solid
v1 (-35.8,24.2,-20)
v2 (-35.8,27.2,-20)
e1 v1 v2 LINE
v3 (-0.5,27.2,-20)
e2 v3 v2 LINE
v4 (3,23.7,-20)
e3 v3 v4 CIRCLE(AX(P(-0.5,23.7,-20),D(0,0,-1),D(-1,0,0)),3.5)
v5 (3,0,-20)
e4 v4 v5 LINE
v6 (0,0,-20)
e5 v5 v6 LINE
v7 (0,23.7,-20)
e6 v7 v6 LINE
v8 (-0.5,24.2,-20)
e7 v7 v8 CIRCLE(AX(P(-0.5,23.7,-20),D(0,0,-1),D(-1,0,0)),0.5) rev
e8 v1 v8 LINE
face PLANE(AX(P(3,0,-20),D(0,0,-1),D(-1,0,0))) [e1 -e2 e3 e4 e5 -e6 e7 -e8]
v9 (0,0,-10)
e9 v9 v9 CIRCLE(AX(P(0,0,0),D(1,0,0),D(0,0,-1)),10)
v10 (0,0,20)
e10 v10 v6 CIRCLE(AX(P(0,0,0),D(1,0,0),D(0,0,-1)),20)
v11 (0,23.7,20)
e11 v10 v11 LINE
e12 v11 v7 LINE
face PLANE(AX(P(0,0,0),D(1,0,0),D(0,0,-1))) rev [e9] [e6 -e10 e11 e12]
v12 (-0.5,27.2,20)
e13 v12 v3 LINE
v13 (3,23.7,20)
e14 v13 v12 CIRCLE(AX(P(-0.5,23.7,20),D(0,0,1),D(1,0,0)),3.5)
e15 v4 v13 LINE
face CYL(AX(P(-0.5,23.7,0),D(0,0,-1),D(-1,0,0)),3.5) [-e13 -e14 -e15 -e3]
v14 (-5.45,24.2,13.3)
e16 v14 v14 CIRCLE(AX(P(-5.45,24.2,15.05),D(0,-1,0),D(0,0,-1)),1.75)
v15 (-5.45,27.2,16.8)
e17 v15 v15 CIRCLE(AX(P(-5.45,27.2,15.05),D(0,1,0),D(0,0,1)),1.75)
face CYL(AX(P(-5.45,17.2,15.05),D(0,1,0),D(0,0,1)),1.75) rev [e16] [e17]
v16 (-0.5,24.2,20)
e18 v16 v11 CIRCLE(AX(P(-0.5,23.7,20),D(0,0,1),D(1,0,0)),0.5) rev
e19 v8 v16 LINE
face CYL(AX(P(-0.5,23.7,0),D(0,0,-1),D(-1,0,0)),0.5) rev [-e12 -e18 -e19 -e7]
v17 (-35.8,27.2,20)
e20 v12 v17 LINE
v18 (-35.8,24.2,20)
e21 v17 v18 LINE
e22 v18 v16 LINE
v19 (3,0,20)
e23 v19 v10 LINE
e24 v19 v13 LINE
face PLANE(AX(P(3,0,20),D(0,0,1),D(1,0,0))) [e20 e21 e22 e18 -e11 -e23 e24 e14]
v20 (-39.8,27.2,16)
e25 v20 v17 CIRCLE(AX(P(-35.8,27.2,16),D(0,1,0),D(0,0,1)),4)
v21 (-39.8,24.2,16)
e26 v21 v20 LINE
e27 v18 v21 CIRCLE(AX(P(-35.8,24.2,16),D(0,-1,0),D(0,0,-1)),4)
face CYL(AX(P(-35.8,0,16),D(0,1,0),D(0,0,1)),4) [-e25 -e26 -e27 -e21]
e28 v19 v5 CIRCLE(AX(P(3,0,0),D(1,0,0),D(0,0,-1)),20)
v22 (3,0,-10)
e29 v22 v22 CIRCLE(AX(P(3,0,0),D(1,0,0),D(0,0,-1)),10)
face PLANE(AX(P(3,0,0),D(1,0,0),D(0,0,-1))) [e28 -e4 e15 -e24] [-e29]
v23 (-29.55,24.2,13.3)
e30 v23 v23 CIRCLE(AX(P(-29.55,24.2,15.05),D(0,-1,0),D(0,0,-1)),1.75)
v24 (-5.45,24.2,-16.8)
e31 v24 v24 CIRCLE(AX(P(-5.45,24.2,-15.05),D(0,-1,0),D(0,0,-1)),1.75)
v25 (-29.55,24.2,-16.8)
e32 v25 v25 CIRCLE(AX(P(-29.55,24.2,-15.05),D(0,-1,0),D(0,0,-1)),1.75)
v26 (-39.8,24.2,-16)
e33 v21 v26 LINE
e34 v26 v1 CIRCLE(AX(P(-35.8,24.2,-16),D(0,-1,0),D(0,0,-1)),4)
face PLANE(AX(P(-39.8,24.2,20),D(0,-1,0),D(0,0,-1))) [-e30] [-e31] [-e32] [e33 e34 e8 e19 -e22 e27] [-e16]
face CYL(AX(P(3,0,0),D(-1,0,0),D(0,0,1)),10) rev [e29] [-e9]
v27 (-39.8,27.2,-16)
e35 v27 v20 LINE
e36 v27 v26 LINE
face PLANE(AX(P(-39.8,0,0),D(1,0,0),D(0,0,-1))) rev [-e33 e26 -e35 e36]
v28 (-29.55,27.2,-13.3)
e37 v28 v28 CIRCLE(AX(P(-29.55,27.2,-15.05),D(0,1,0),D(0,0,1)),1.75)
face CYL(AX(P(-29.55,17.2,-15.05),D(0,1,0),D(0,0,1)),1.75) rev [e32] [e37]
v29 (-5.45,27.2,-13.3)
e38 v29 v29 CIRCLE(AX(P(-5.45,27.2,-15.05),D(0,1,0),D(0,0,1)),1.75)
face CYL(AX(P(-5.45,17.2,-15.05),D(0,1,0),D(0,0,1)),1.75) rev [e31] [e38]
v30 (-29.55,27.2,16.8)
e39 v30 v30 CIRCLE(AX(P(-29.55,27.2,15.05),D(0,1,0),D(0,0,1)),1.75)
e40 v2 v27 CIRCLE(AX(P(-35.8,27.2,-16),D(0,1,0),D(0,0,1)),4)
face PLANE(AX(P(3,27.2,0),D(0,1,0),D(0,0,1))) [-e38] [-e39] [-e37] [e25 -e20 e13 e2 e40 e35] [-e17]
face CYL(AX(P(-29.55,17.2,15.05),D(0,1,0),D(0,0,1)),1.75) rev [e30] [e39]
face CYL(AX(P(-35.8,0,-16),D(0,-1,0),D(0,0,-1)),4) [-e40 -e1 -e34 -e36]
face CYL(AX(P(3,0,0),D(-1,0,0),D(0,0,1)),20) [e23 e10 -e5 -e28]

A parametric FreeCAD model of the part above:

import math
import FreeCAD as App
import Part
import Sketcher

V = App.Vector


def edges_at(feature, points):
    """Names of the edges that pass closest to the given points."""
    edges = feature.Shape.Edges
    near = lambda p: min(range(len(edges)), key=lambda i: edges[i].distToShape(Part.Vertex(*p))[0])
    return sorted({f"Edge{near(p) + 1}" for p in points})

doc = App.newDocument("Part")
body = doc.addObject("PartDesign::Body", "Body")

# Sketch on YZ plane
sketch1 = body.newObject("Sketcher::SketchObject", "Sketch")
sketch1.AttachmentSupport = (doc.getObject("YZ_Plane"), [""])
sketch1.MapMode = "FlatFace"
sketch1.addGeometry([
    Part.LineSegment(V(27, 20, 0), V(0, 20, 0)),  # 0
    Part.ArcOfCircle(Part.Circle(V(0, 0, 0), V(0, 0, 1), 20), math.radians(90), math.radians(270)),  # 1
    Part.LineSegment(V(0, -20, 0), V(27, -20, 0)),  # 2
    Part.LineSegment(V(27, -20, 0), V(27, 20, 0)),  # 3
    Part.Circle(V(0, 0, 0), V(0, 0, 1), 10),  # 4
], False)
sketch1.addConstraint([
    Sketcher.Constraint("Tangent", 0, 2, 1, 1),
    Sketcher.Constraint("Tangent", 1, 2, 2, 1),
    Sketcher.Constraint("Coincident", 2, 2, 3, 1),
    Sketcher.Constraint("Coincident", 3, 2, 0, 1),
    Sketcher.Constraint("Horizontal", 0),
    Sketcher.Constraint("Horizontal", 2),
    Sketcher.Constraint("Vertical", 3),
    Sketcher.Constraint("Coincident", 1, 3, -1, 1),
    Sketcher.Constraint("Coincident", 4, 3, -1, 1),
    Sketcher.Constraint("Diameter", 4, 20.0),
    Sketcher.Constraint("Radius", 1, 20.0),
    Sketcher.Constraint("DistanceX", 0, 2, 0, 1, 27.2),
])
pad1 = body.newObject("PartDesign::Pad", "Pad")
pad1.Profile = sketch1
pad1.Length = 3

# Sketch on YZ plane
sketch2 = body.newObject("Sketcher::SketchObject", "Sketch001")
sketch2.AttachmentSupport = (doc.getObject("YZ_Plane"), [""])
sketch2.MapMode = "FlatFace"
sketch2.AttachmentOffset = App.Placement(V(0, 0, 3), App.Rotation())
sketch2.addGeometry([
    Part.LineSegment(V(27.2, 20, 0), V(24.2, 20, 0)),
    Part.LineSegment(V(24.2, 20, 0), V(24.2, -20, 0)),
    Part.LineSegment(V(24.2, -20, 0), V(27.2, -20, 0)),
    Part.LineSegment(V(27.2, -20, 0), V(27.2, 20, 0)),
], False)
sketch2.addConstraint([
    Sketcher.Constraint("Coincident", 0, 2, 1, 1),
    Sketcher.Constraint("Coincident", 1, 2, 2, 1),
    Sketcher.Constraint("Coincident", 2, 2, 3, 1),
    Sketcher.Constraint("Coincident", 3, 2, 0, 1),
    Sketcher.Constraint("Horizontal", 0),
    Sketcher.Constraint("Vertical", 1),
    Sketcher.Constraint("Horizontal", 2),
    Sketcher.Constraint("Vertical", 3),
    Sketcher.Constraint("DistanceX", 0, 2, 0, 1, 3.0),
    Sketcher.Constraint("DistanceY", 1, 2, 1, 1, 40.0),
    Sketcher.Constraint("DistanceY", -1, 1, 0, 2, 20.0),
    Sketcher.Constraint("DistanceX", -1, 1, 0, 2, 24.2),
])
pad2 = body.newObject("PartDesign::Pad", "Pad001")
pad2.Profile = sketch2
pad2.Length = 42.8
pad2.Reversed = True
doc.recompute()

fillet = body.newObject("PartDesign::Fillet", "Fillet")
fillet.Base = (pad2, edges_at(pad2, [(0, 24.2, 0)]))
fillet.Radius = 0.5
doc.recompute()

fillet2 = body.newObject("PartDesign::Fillet", "Fillet001")
fillet2.Base = (fillet, edges_at(fillet, [(3, 27.2, 0)]))
fillet2.Radius = 3.5
doc.recompute()

fillet3 = body.newObject("PartDesign::Fillet", "Fillet002")
fillet3.Base = (fillet2, edges_at(fillet2, [(-39.8, 25.7, 20), (-39.8, 25.7, -20)]))
fillet3.Radius = 4

# Sketch on XZ plane
sketch3 = body.newObject("Sketcher::SketchObject", "Sketch002")
sketch3.AttachmentSupport = (doc.getObject("XZ_Plane"), [""])
sketch3.MapMode = "FlatFace"
sketch3.AttachmentOffset = App.Placement(V(0, 0, -27.2), App.Rotation())
sketch3.addGeometry([
    Part.Circle(V(-29.6, -15.1, 0), V(0, 0, 1), 1.8),
    Part.Circle(V(-5.5, -15.1, 0), V(0, 0, 1), 1.8),
    Part.Circle(V(-29.6, 15.1, 0), V(0, 0, 1), 1.8),
    Part.Circle(V(-5.5, 15.1, 0), V(0, 0, 1), 1.8),
], False)
sketch3.addConstraint([
    Sketcher.Constraint("Equal", 0, 1),
    Sketcher.Constraint("Equal", 1, 2),
    Sketcher.Constraint("Equal", 2, 3),
    Sketcher.Constraint("Symmetric", 0, 3, 2, 3, -1),
    Sketcher.Constraint("Symmetric", 1, 3, 3, 3, -1),
    Sketcher.Constraint("Horizontal", 0, 3, 1, 3),
    Sketcher.Constraint("Diameter", 0, 3.5),
    Sketcher.Constraint("DistanceX", 0, 3, 1, 3, 24.1),
    Sketcher.Constraint("DistanceY", 0, 3, 2, 3, 30.1),
    Sketcher.Constraint("DistanceX", 0, 3, -1, 1, 29.55),
])
pocket1 = body.newObject("PartDesign::Pocket", "Pocket")
pocket1.Profile = sketch3
pocket1.Length = 10
pocket1.Reversed = True

doc.recompute()
